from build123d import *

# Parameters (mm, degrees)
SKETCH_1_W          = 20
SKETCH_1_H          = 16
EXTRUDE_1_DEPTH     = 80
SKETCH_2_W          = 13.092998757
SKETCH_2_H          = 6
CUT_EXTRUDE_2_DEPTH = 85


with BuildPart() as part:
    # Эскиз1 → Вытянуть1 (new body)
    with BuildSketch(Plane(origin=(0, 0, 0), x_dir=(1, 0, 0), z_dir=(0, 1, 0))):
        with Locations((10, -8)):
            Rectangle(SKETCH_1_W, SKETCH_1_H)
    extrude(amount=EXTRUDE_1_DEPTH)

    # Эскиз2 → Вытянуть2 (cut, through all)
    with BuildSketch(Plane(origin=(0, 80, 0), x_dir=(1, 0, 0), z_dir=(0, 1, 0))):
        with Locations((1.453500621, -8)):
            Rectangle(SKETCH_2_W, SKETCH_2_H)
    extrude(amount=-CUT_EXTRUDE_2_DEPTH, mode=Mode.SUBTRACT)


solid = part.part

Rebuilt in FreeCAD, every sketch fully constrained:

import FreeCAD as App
import Part
import Sketcher

V = App.Vector
Q = App.Units.Quantity

doc = App.newDocument("Part")
body = doc.addObject("PartDesign::Body", "Body")

# Sketch on XZ plane
sketch1 = body.newObject("Sketcher::SketchObject", "Sketch")
sketch1.AttachmentSupport = (doc.getObject("XZ_Plane"), [""])
sketch1.MapMode = "FlatFace"
sketch1.addGeometry([
    Part.LineSegment(V(0, 0, 0), V(0, 16, 0)),
    Part.LineSegment(V(0, 16, 0), V(20, 16, 0)),
    Part.LineSegment(V(20, 16, 0), V(20, 0, 0)),
    Part.LineSegment(V(20, 0, 0), V(0, 0, 0)),
], False)
sketch1.addConstraint([
    Sketcher.Constraint("Coincident", 0, 2, 1, 1),
    Sketcher.Constraint("Coincident", 1, 2, 2, 1),
    Sketcher.Constraint("Coincident", 2, 2, 3, 1),
    Sketcher.Constraint("Coincident", 3, 2, 0, 1),
    Sketcher.Constraint("Vertical", 0),
    Sketcher.Constraint("Horizontal", 1),
    Sketcher.Constraint("Vertical", 2),
    Sketcher.Constraint("Horizontal", 3),
    Sketcher.Constraint("Coincident", 3, 2, -1, 1),
    Sketcher.Constraint("DistanceX", 1, 1, 1, 2, Q("20 mm")),
    Sketcher.Constraint("DistanceY", 0, 1, 0, 2, Q("16 mm")),
])
pad1 = body.newObject("PartDesign::Pad", "Pad")
pad1.Profile = sketch1
pad1.Length = 80
pad1.Reversed = True

# Sketch on XZ plane
sketch2 = body.newObject("Sketcher::SketchObject", "Sketch001")
sketch2.AttachmentSupport = (doc.getObject("XZ_Plane"), [""])
sketch2.MapMode = "FlatFace"
sketch2.AttachmentOffset = App.Placement(V(0, 0, -80), App.Rotation())
sketch2.addGeometry([
    Part.LineSegment(V(-5, 5, 0), V(-5, 11, 0)),
    Part.LineSegment(V(-5, 11, 0), V(8, 11, 0)),
    Part.LineSegment(V(8, 11, 0), V(8, 5, 0)),
    Part.LineSegment(V(8, 5, 0), V(-5, 5, 0)),
], False)
sketch2.addConstraint([
    Sketcher.Constraint("Coincident", 0, 2, 1, 1),
    Sketcher.Constraint("Coincident", 1, 2, 2, 1),
    Sketcher.Constraint("Coincident", 2, 2, 3, 1),
    Sketcher.Constraint("Coincident", 3, 2, 0, 1),
    Sketcher.Constraint("Vertical", 0),
    Sketcher.Constraint("Horizontal", 1),
    Sketcher.Constraint("Vertical", 2),
    Sketcher.Constraint("Horizontal", 3),
    Sketcher.Constraint("DistanceY", 0, 1, 0, 2, Q("6 mm")),
    Sketcher.Constraint("DistanceY", -1, 1, 0, 2, Q("11 mm")),
    Sketcher.Constraint("DistanceX", -1, 1, 1, 2, Q("8 mm")),
    Sketcher.Constraint("DistanceX", 1, 1, 1, 2, Q("13.092999 mm")),
])
pocket1 = body.newObject("PartDesign::Pocket", "Pocket")
pocket1.Profile = sketch2
pocket1.Type = "ThroughAll"
pocket1.Reversed = True

doc.recompute()
